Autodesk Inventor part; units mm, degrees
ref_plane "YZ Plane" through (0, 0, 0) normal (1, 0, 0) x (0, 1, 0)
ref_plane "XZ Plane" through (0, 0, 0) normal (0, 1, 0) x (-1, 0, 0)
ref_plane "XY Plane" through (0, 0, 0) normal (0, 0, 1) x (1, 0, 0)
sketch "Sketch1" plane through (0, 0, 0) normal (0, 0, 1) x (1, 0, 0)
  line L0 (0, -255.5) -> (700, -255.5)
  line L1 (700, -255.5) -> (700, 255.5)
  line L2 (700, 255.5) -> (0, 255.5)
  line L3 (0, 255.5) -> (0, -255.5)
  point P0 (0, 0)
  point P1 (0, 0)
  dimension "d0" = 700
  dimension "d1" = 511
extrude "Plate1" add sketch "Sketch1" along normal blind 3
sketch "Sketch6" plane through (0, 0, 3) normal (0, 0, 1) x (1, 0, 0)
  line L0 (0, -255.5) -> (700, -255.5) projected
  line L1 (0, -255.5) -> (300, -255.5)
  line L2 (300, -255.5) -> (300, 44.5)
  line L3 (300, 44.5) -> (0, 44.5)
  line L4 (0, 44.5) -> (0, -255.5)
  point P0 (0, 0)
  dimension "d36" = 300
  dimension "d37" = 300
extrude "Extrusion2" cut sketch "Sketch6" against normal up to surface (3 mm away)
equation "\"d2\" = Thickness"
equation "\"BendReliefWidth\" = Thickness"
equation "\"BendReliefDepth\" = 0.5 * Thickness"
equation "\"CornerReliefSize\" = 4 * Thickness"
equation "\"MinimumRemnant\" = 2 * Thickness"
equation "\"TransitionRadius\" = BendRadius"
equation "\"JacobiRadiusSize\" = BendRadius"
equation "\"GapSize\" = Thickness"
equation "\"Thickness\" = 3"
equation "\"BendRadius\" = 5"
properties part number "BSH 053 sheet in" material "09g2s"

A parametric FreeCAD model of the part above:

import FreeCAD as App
import Part
import Sketcher
Q = App.Units.Quantity


def add_polygon(sketch, points):
    """Adds a closed chain of lines whose ends are joined by coincident constraints."""
    first, n = sketch.GeometryCount, len(points)
    for a, b in zip(points, points[1:] + points[:1]):
        sketch.addGeometry(Part.LineSegment(App.Vector(*a, 0), App.Vector(*b, 0)), False)
    for i in range(n):
        sketch.addConstraint(Sketcher.Constraint("Coincident", first + i, 2, first + (i + 1) % n, 1))

doc = App.newDocument("Part")
params = doc.addObject("Spreadsheet::Sheet", "Params")
for row, (alias, value) in enumerate([
    ("sketch1_width", "700 mm"),
    ("sketch1_height", "511 mm"),
    ("pad1_length", "3 mm"),
    ("sketch2_width", "300 mm"),
    ("pocket1_length", "3 mm"),
], start=1):
    params.set(f"A{row}", alias)
    params.set(f"B{row}", "=" + value)
    params.setAlias(f"B{row}", alias)

body = doc.addObject("PartDesign::Body", "Body")

sketch1 = body.newObject("Sketcher::SketchObject", "Sketch")
sketch1.AttachmentSupport = (doc.getObject("XY_Plane"), [""])
sketch1.MapMode = "FlatFace"
add_polygon(sketch1, [(0, 256), (0, -256), (700, -256), (700, 256)])
sketch1.addConstraint([
    Sketcher.Constraint("Vertical", 0),
    Sketcher.Constraint("Horizontal", 1),
    Sketcher.Constraint("Vertical", 2),
    Sketcher.Constraint("Horizontal", 3),
    Sketcher.Constraint("Symmetric", 0, 2, 3, 2, -1, 1),
    Sketcher.Constraint("DistanceX", 1, 1, 1, 2, Q("700 mm")),
    Sketcher.Constraint("DistanceY", 0, 2, 0, 1, Q("511 mm")),
])
sketch1.setExpression("Constraints[9]", "Params.sketch1_width")
sketch1.setExpression("Constraints[10]", "Params.sketch1_height")
pad1 = body.newObject("PartDesign::Pad", "Pad")
pad1.Profile = sketch1
pad1.setExpression("Length", "Params.pad1_length")

sketch2 = body.newObject("Sketcher::SketchObject", "Sketch001")
sketch2.AttachmentSupport = (doc.getObject("XY_Plane"), [""])
sketch2.MapMode = "FlatFace"
sketch2.AttachmentOffset = App.Placement(App.Vector(0, 0, 3), App.Rotation())
add_polygon(sketch2, [(0, 44), (0, -256), (300, -256), (300, 44)])
sketch2.addConstraint([
    Sketcher.Constraint("Vertical", 0),
    Sketcher.Constraint("Horizontal", 1),
    Sketcher.Constraint("Vertical", 2),
    Sketcher.Constraint("Horizontal", 3),
    Sketcher.Constraint("PointOnObject", 0, 2, -2),
    Sketcher.Constraint("Equal", 3, 0),
    Sketcher.Constraint("DistanceX", 1, 1, 1, 2, Q("300 mm")),
    Sketcher.Constraint("DistanceY", 0, 2, -1, 1, Q("255.5 mm")),
])
sketch2.setExpression("Constraints[10]", "Params.sketch2_width")
pocket1 = body.newObject("PartDesign::Pocket", "Pocket")
pocket1.Profile = sketch2
pocket1.setExpression("Length", "Params.pocket1_length")

doc.recompute()
